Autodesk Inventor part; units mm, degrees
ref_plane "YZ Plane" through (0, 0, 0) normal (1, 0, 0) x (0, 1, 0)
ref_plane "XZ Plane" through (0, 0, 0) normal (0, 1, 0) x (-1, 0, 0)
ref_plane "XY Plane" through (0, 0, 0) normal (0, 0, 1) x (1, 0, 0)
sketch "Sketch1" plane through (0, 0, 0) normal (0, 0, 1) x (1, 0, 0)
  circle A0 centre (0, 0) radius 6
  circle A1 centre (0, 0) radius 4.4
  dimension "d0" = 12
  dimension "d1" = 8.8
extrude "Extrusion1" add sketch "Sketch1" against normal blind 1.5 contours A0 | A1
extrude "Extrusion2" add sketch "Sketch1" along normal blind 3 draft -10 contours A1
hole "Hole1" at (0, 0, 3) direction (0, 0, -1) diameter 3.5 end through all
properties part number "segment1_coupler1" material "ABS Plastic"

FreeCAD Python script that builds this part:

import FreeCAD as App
import Part
import Sketcher
from FreeCAD import Vector

doc = App.newDocument("Part")
body = doc.addObject("PartDesign::Body", "Body")

# Sketch on XY plane
sketch1 = body.newObject("Sketcher::SketchObject", "Sketch")
sketch1.AttachmentSupport = (doc.getObject("XY_Plane"), [""])
sketch1.MapMode = "FlatFace"
sketch1.addGeometry(Part.Circle(Vector(0, 0, 0), Vector(0, 0, 1), 6), False)
sketch1.addConstraint([
    Sketcher.Constraint("Coincident", 0, 3, -1, 1),
    Sketcher.Constraint("Diameter", 0, 12.0),
])
pad1 = body.newObject("PartDesign::Pad", "Pad")
pad1.Profile = sketch1
pad1.Length = 1.5
pad1.Reversed = True

# Sketch on XY plane
sketch2 = body.newObject("Sketcher::SketchObject", "Sketch001")
sketch2.AttachmentSupport = (doc.getObject("XY_Plane"), [""])
sketch2.MapMode = "FlatFace"
sketch2.addGeometry(Part.Circle(Vector(0, 0, 0), Vector(0, 0, 1), 4.4), False)
sketch2.addConstraint([
    Sketcher.Constraint("Coincident", 0, 3, -1, 1),
    Sketcher.Constraint("Diameter", 0, 8.8),
])
pad2 = body.newObject("PartDesign::Pad", "Pad001")
pad2.Profile = sketch2
pad2.Length = 3
pad2.TaperAngle = -10

# Sketch on XY plane
sketch3 = body.newObject("Sketcher::SketchObject", "Sketch002")
sketch3.AttachmentSupport = (doc.getObject("XY_Plane"), [""])
sketch3.MapMode = "FlatFace"
sketch3.AttachmentOffset = App.Placement(Vector(0, 0, 3), App.Rotation())
sketch3.addGeometry(Part.Circle(Vector(0, 0, 0), Vector(0, 0, 1), 1.75), False)
sketch3.addConstraint([
    Sketcher.Constraint("Coincident", 0, 3, -1, 1),
    Sketcher.Constraint("Diameter", 0, 3.5),
])
doc.recompute()
hole = body.newObject("PartDesign::Hole", "Hole")
hole.Profile = sketch3
hole.ThreadType = "None"
hole.Diameter = 3.5
hole.DepthType = "ThroughAll"

doc.recompute()
